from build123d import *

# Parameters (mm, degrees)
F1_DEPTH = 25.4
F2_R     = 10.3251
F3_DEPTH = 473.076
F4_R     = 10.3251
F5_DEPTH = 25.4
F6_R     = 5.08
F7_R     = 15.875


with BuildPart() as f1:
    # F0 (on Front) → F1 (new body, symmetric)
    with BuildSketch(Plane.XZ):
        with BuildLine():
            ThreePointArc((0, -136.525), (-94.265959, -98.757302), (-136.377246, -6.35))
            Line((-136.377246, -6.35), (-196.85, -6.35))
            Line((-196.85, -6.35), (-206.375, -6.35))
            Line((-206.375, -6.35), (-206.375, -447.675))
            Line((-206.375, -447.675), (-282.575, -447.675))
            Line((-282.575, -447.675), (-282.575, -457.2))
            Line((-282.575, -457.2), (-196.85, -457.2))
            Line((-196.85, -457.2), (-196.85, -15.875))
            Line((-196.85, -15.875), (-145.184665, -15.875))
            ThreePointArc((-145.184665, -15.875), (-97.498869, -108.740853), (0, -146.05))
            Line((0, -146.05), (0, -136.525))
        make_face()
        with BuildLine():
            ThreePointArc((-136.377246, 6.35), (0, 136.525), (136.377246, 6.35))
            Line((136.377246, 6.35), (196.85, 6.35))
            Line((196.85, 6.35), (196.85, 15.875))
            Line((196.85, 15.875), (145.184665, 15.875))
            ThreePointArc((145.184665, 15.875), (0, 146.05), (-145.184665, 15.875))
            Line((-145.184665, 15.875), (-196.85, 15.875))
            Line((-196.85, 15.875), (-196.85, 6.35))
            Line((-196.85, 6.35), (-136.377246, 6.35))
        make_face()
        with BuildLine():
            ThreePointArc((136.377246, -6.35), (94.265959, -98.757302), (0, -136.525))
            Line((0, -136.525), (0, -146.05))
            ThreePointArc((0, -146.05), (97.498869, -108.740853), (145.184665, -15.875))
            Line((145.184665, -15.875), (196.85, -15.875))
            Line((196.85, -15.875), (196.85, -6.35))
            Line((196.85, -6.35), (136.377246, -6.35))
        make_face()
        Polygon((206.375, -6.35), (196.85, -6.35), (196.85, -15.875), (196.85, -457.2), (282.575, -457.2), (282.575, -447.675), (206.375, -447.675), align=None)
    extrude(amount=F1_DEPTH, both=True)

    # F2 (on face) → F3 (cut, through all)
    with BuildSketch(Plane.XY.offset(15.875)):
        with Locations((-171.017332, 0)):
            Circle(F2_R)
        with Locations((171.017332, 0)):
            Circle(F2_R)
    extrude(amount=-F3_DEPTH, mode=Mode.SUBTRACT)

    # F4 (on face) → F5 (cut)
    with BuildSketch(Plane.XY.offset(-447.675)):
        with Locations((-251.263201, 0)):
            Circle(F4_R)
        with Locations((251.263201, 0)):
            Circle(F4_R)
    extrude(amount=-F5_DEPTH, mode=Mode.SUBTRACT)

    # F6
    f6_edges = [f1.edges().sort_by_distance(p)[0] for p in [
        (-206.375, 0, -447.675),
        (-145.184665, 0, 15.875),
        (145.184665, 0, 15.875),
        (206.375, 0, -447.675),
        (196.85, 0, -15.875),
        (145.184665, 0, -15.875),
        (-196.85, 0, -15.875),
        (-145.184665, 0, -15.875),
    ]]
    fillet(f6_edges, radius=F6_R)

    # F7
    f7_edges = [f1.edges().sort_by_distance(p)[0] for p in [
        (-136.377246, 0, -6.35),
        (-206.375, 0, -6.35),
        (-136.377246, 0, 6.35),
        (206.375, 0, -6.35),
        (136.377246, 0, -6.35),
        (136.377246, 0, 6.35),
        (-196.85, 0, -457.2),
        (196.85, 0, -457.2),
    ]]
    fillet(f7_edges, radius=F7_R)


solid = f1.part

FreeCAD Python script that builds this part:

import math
import FreeCAD as App
import Part
import Sketcher

V = App.Vector
Q = App.Units.Quantity


def edges_at(feature, points):
    """Names of the edges that pass closest to the given points."""
    edges = feature.Shape.Edges
    near = lambda p: min(range(len(edges)), key=lambda i: edges[i].distToShape(Part.Vertex(*p))[0])
    return sorted({f"Edge{near(p) + 1}" for p in points})

doc = App.newDocument("Part")
params = doc.addObject("Spreadsheet::Sheet", "Params")
for row, (alias, value) in enumerate([
    ("sketch1_width", "3 in"),
    ("sketch1_radius", "5.75 in"),
    ("sketch1_radius2", "5.375 in"),
    ("sketch1_width2", "3.375 in"),
    ("pad1_length", "2 in"),
    ("sketch2_diameter", "0.813 in"),
    ("sketch3_diameter", "0.813 in"),
    ("pocket2_length", "1 in"),
    ("fillet_radius", "0.2 in"),
    ("fillet2_radius", "0.625 in"),
], start=1):
    params.set(f"A{row}", alias)
    params.set(f"B{row}", "=" + value)
    params.setAlias(f"B{row}", alias)

body = doc.addObject("PartDesign::Body", "Body")
body.AllowCompound = True

sketch1 = doc.addObject("Sketcher::SketchObject", "Sketch")
body.addObject(sketch1)
sketch1.AttachmentSupport = (doc.XZ_Plane, [""])
sketch1.MapMode = "FlatFace"
sketch1.addGeometry(Part.ArcOfCircle(Part.Circle(V(0, 0, 0), V(0, 0, 1), 137), math.radians(-177), math.radians(-90)), False)
sketch1.addGeometry(Part.LineSegment(V(-136, -6, 0), V(-206, -6, 0)), False)
sketch1.addGeometry(Part.LineSegment(V(-206, -6, 0), V(-206, -448, 0)), False)
sketch1.addGeometry(Part.LineSegment(V(-206, -448, 0), V(-283, -448, 0)), False)
sketch1.addGeometry(Part.LineSegment(V(-283, -448, 0), V(-283, -457, 0)), False)
sketch1.addGeometry(Part.LineSegment(V(-283, -457, 0), V(-197, -457, 0)), False)
sketch1.addGeometry(Part.LineSegment(V(-197, -457, 0), V(-197, -16, 0)), False)
sketch1.addGeometry(Part.LineSegment(V(-197, -16, 0), V(-145, -16, 0)), False)
sketch1.addGeometry(Part.ArcOfCircle(Part.Circle(V(0, 0, 0), V(0, 0, 1), 146), math.radians(-174), math.radians(-90)), False)
sketch1.addGeometry(Part.ArcOfCircle(Part.Circle(V(0, 0, 0), V(0, 0, 1), 146), math.radians(-90), math.radians(-6)), False)
sketch1.addGeometry(Part.LineSegment(V(145, -16, 0), V(197, -16, 0)), False)
sketch1.addGeometry(Part.LineSegment(V(197, -16, 0), V(197, -457, 0)), False)
sketch1.addGeometry(Part.LineSegment(V(197, -457, 0), V(283, -457, 0)), False)
sketch1.addGeometry(Part.LineSegment(V(283, -457, 0), V(283, -448, 0)), False)
sketch1.addGeometry(Part.LineSegment(V(283, -448, 0), V(206, -448, 0)), False)
sketch1.addGeometry(Part.LineSegment(V(206, -448, 0), V(206, -6, 0)), False)
sketch1.addGeometry(Part.LineSegment(V(206, -6, 0), V(136, -6, 0)), False)
sketch1.addGeometry(Part.ArcOfCircle(Part.Circle(V(0, 0, 0), V(0, 0, 1), 137), math.radians(-90), math.radians(-3)), False)
sketch1.addGeometry(Part.ArcOfCircle(Part.Circle(V(0, 0, 0), V(0, 0, 1), 137), math.radians(3), math.radians(177)), False)
sketch1.addGeometry(Part.LineSegment(V(136, 6, 0), V(197, 6, 0)), False)
sketch1.addGeometry(Part.LineSegment(V(197, 6, 0), V(197, 16, 0)), False)
sketch1.addGeometry(Part.LineSegment(V(197, 16, 0), V(145, 16, 0)), False)
sketch1.addGeometry(Part.ArcOfCircle(Part.Circle(V(0, 0, 0), V(0, 0, 1), 146), math.radians(6), math.radians(174)), False)
sketch1.addGeometry(Part.LineSegment(V(-145, 16, 0), V(-197, 16, 0)), False)
sketch1.addGeometry(Part.LineSegment(V(-197, 16, 0), V(-197, 6, 0)), False)
sketch1.addGeometry(Part.LineSegment(V(-197, 6, 0), V(-136, 6, 0)), False)
sketch1.addConstraint(Sketcher.Constraint("Coincident", 0, 1, 1, 1))
sketch1.addConstraint(Sketcher.Constraint("Coincident", 1, 2, 2, 1))
sketch1.addConstraint(Sketcher.Constraint("Coincident", 2, 2, 3, 1))
sketch1.addConstraint(Sketcher.Constraint("Coincident", 3, 2, 4, 1))
sketch1.addConstraint(Sketcher.Constraint("Coincident", 4, 2, 5, 1))
sketch1.addConstraint(Sketcher.Constraint("Coincident", 5, 2, 6, 1))
sketch1.addConstraint(Sketcher.Constraint("Coincident", 6, 2, 7, 1))
sketch1.addConstraint(Sketcher.Constraint("Coincident", 7, 2, 8, 1))
sketch1.addConstraint(Sketcher.Constraint("Tangent", 8, 2, 9, 1))
sketch1.addConstraint(Sketcher.Constraint("Coincident", 9, 2, 10, 1))
sketch1.addConstraint(Sketcher.Constraint("Coincident", 10, 2, 11, 1))
sketch1.addConstraint(Sketcher.Constraint("Coincident", 11, 2, 12, 1))
sketch1.addConstraint(Sketcher.Constraint("Coincident", 12, 2, 13, 1))
sketch1.addConstraint(Sketcher.Constraint("Coincident", 13, 2, 14, 1))
sketch1.addConstraint(Sketcher.Constraint("Coincident", 14, 2, 15, 1))
sketch1.addConstraint(Sketcher.Constraint("Coincident", 15, 2, 16, 1))
sketch1.addConstraint(Sketcher.Constraint("Coincident", 16, 2, 17, 2))
sketch1.addConstraint(Sketcher.Constraint("Tangent", 17, 1, 0, 2))
sketch1.addConstraint(Sketcher.Constraint("Coincident", 18, 1, 19, 1))
sketch1.addConstraint(Sketcher.Constraint("Coincident", 19, 2, 20, 1))
sketch1.addConstraint(Sketcher.Constraint("Coincident", 20, 2, 21, 1))
sketch1.addConstraint(Sketcher.Constraint("Coincident", 21, 2, 22, 1))
sketch1.addConstraint(Sketcher.Constraint("Coincident", 22, 2, 23, 1))
sketch1.addConstraint(Sketcher.Constraint("Coincident", 23, 2, 24, 1))
sketch1.addConstraint(Sketcher.Constraint("Coincident", 24, 2, 25, 1))
sketch1.addConstraint(Sketcher.Constraint("Coincident", 25, 2, 18, 2))
sketch1.addConstraint(Sketcher.Constraint("Horizontal", 1))
sketch1.addConstraint(Sketcher.Constraint("Vertical", 2))
sketch1.addConstraint(Sketcher.Constraint("Horizontal", 3))
sketch1.addConstraint(Sketcher.Constraint("Vertical", 4))
sketch1.addConstraint(Sketcher.Constraint("Horizontal", 5))
sketch1.addConstraint(Sketcher.Constraint("Vertical", 6))
sketch1.addConstraint(Sketcher.Constraint("Horizontal", 7))
sketch1.addConstraint(Sketcher.Constraint("Horizontal", 10))
sketch1.addConstraint(Sketcher.Constraint("Vertical", 11))
sketch1.addConstraint(Sketcher.Constraint("Horizontal", 12))
sketch1.addConstraint(Sketcher.Constraint("Vertical", 13))
sketch1.addConstraint(Sketcher.Constraint("Horizontal", 14))
sketch1.addConstraint(Sketcher.Constraint("Vertical", 15))
sketch1.addConstraint(Sketcher.Constraint("Horizontal", 16))
sketch1.addConstraint(Sketcher.Constraint("Horizontal", 19))
sketch1.addConstraint(Sketcher.Constraint("Vertical", 20))
sketch1.addConstraint(Sketcher.Constraint("Horizontal", 21))
sketch1.addConstraint(Sketcher.Constraint("Horizontal", 23))
sketch1.addConstraint(Sketcher.Constraint("Vertical", 24))
sketch1.addConstraint(Sketcher.Constraint("Horizontal", 25))
sketch1.addConstraint(Sketcher.Constraint("Coincident", 0, 3, -1, 1))
sketch1.addConstraint(Sketcher.Constraint("Coincident", 8, 3, -1, 1))
sketch1.addConstraint(Sketcher.Constraint("Coincident", 18, 3, -1, 1))
sketch1.addConstraint(Sketcher.Constraint("Coincident", 22, 3, -1, 1))
sketch1.addConstraint(Sketcher.Constraint("Equal", 8, 9))
sketch1.addConstraint(Sketcher.Constraint("Equal", 0, 17))
sketch1.addConstraint(Sketcher.Constraint("Equal", 17, 18))
sketch1.addConstraint(Sketcher.Constraint("Equal", 9, 22))
sketch1.addConstraint(Sketcher.Constraint("Symmetric", 6, 2, 20, 2, -1, 1))
sketch1.addConstraint(Sketcher.Constraint("Symmetric", 10, 2, 23, 2, -1, 1))
sketch1.addConstraint(Sketcher.Constraint("Symmetric", 6, 2, 10, 2, -2))
sketch1.addConstraint(Sketcher.Constraint("Symmetric", 4, 2, 12, 2, -2))
sketch1.addConstraint(Sketcher.Constraint("Symmetric", 2, 2, 14, 2, -2))
sketch1.addConstraint(Sketcher.Constraint("PointOnObject", 8, 2, -2))
sketch1.addConstraint(Sketcher.Constraint("PointOnObject", 17, 1, -2))
sketch1.addConstraint(Sketcher.Constraint("Horizontal", 1, 2, 15, 2))
sketch1.addConstraint(Sketcher.Constraint("Horizontal", 19, 2, 24, 2))
sketch1.addConstraint(Sketcher.Constraint("Vertical", 16, 2, 18, 1))
sketch1.addConstraint(Sketcher.Constraint("Equal", 2, 6))
sketch1.addConstraint(Sketcher.Constraint("DistanceX", 3, 2, 3, 1, Q("3 in")))
sketch1.addConstraint(Sketcher.Constraint("Radius", 8, Q("5.75 in")))
sketch1.addConstraint(Sketcher.Constraint("DistanceY", 4, 2, -1, 1, Q("18 in")))
sketch1.addConstraint(Sketcher.Constraint("Radius", 0, Q("5.375 in")))
sketch1.addConstraint(Sketcher.Constraint("DistanceY", 13, 2, 10, 2, Q("17 in")))
sketch1.addConstraint(Sketcher.Constraint("DistanceX", 5, 2, 11, 2, Q("15.5 in")))
sketch1.addConstraint(Sketcher.Constraint("DistanceY", 16, 2, 18, 1, Q("0.5 in")))
sketch1.addConstraint(Sketcher.Constraint("DistanceX", 5, 1, 5, 2, Q("3.375 in")))
sketch1.setExpression("Constraints[65]", "Params.sketch1_width")
sketch1.setExpression("Constraints[66]", "Params.sketch1_radius")
sketch1.setExpression("Constraints[68]", "Params.sketch1_radius2")
sketch1.setExpression("Constraints[72]", "Params.sketch1_width2")
pad1 = doc.addObject("PartDesign::Pad", "Pad")
body.addObject(pad1)
pad1.Profile = sketch1
pad1.setExpression("Length", "Params.pad1_length")
pad1.Midplane = True

sketch2 = doc.addObject("Sketcher::SketchObject", "Sketch001")
body.addObject(sketch2)
sketch2.AttachmentSupport = (doc.XY_Plane, [""])
sketch2.MapMode = "FlatFace"
sketch2.AttachmentOffset = App.Placement(V(0, 0, 0.625 * 25.4), App.Rotation())
sketch2.addGeometry(Part.Circle(V(-171, 0, 0), V(0, 0, 1), 10), False)
sketch2.addGeometry(Part.Circle(V(171, 0, 0), V(0, 0, 1), 10), False)
sketch2.addConstraint(Sketcher.Constraint("Equal", 0, 1))
sketch2.addConstraint(Sketcher.Constraint("Symmetric", 0, 3, 1, 3, -1, 1))
sketch2.addConstraint(Sketcher.Constraint("PointOnObject", 0, 3, -1))
sketch2.addConstraint(Sketcher.Constraint("Diameter", 0, Q("0.813 in")))
sketch2.addConstraint(Sketcher.Constraint("DistanceX", 0, 3, -1, 1, 171.017332))
sketch2.setExpression("Constraints[3]", "Params.sketch2_diameter")
pocket1 = doc.addObject("PartDesign::Pocket", "Pocket")
body.addObject(pocket1)
pocket1.Profile = sketch2
pocket1.Type = "ThroughAll"

sketch3 = doc.addObject("Sketcher::SketchObject", "Sketch002")
body.addObject(sketch3)
sketch3.AttachmentSupport = (doc.XY_Plane, [""])
sketch3.MapMode = "FlatFace"
sketch3.AttachmentOffset = App.Placement(V(0, 0, -17.625 * 25.4), App.Rotation())
sketch3.addGeometry(Part.Circle(V(-251, 0, 0), V(0, 0, 1), 10), False)
sketch3.addGeometry(Part.Circle(V(251, 0, 0), V(0, 0, 1), 10), False)
sketch3.addConstraint(Sketcher.Constraint("Equal", 0, 1))
sketch3.addConstraint(Sketcher.Constraint("Symmetric", 0, 3, 1, 3, -1, 1))
sketch3.addConstraint(Sketcher.Constraint("PointOnObject", 0, 3, -1))
sketch3.addConstraint(Sketcher.Constraint("Diameter", 0, Q("0.813 in")))
sketch3.addConstraint(Sketcher.Constraint("DistanceX", 0, 3, -1, 1, 251.263201))
sketch3.setExpression("Constraints[3]", "Params.sketch3_diameter")
pocket2 = doc.addObject("PartDesign::Pocket", "Pocket001")
body.addObject(pocket2)
pocket2.Profile = sketch3
pocket2.setExpression("Length", "Params.pocket2_length")
doc.recompute()

fillet = doc.addObject("PartDesign::Fillet", "Fillet")
body.addObject(fillet)
fillet.Base = (pocket2, edges_at(pocket2, [
    (-206.375, 0, -447.675),
    (-145.185, 0, 15.875),
    (145.185, 0, 15.875),
    (206.375, 0, -447.675),
    (196.85, 0, -15.875),
    (145.185, 0, -15.875),
    (-196.85, 0, -15.875),
    (-145.185, 0, -15.875),
]))
fillet.setExpression("Radius", "Params.fillet_radius")
doc.recompute()

fillet2 = doc.addObject("PartDesign::Fillet", "Fillet001")
body.addObject(fillet2)
fillet2.Base = (fillet, edges_at(fillet, [
    (-136.377, 0, -6.35),
    (-206.375, 0, -6.35),
    (-136.377, 0, 6.35),
    (206.375, 0, -6.35),
    (136.377, 0, -6.35),
    (136.377, 0, 6.35),
    (-196.85, 0, -457.2),
    (196.85, 0, -457.2),
]))
fillet2.setExpression("Radius", "Params.fillet2_radius")

doc.recompute()
